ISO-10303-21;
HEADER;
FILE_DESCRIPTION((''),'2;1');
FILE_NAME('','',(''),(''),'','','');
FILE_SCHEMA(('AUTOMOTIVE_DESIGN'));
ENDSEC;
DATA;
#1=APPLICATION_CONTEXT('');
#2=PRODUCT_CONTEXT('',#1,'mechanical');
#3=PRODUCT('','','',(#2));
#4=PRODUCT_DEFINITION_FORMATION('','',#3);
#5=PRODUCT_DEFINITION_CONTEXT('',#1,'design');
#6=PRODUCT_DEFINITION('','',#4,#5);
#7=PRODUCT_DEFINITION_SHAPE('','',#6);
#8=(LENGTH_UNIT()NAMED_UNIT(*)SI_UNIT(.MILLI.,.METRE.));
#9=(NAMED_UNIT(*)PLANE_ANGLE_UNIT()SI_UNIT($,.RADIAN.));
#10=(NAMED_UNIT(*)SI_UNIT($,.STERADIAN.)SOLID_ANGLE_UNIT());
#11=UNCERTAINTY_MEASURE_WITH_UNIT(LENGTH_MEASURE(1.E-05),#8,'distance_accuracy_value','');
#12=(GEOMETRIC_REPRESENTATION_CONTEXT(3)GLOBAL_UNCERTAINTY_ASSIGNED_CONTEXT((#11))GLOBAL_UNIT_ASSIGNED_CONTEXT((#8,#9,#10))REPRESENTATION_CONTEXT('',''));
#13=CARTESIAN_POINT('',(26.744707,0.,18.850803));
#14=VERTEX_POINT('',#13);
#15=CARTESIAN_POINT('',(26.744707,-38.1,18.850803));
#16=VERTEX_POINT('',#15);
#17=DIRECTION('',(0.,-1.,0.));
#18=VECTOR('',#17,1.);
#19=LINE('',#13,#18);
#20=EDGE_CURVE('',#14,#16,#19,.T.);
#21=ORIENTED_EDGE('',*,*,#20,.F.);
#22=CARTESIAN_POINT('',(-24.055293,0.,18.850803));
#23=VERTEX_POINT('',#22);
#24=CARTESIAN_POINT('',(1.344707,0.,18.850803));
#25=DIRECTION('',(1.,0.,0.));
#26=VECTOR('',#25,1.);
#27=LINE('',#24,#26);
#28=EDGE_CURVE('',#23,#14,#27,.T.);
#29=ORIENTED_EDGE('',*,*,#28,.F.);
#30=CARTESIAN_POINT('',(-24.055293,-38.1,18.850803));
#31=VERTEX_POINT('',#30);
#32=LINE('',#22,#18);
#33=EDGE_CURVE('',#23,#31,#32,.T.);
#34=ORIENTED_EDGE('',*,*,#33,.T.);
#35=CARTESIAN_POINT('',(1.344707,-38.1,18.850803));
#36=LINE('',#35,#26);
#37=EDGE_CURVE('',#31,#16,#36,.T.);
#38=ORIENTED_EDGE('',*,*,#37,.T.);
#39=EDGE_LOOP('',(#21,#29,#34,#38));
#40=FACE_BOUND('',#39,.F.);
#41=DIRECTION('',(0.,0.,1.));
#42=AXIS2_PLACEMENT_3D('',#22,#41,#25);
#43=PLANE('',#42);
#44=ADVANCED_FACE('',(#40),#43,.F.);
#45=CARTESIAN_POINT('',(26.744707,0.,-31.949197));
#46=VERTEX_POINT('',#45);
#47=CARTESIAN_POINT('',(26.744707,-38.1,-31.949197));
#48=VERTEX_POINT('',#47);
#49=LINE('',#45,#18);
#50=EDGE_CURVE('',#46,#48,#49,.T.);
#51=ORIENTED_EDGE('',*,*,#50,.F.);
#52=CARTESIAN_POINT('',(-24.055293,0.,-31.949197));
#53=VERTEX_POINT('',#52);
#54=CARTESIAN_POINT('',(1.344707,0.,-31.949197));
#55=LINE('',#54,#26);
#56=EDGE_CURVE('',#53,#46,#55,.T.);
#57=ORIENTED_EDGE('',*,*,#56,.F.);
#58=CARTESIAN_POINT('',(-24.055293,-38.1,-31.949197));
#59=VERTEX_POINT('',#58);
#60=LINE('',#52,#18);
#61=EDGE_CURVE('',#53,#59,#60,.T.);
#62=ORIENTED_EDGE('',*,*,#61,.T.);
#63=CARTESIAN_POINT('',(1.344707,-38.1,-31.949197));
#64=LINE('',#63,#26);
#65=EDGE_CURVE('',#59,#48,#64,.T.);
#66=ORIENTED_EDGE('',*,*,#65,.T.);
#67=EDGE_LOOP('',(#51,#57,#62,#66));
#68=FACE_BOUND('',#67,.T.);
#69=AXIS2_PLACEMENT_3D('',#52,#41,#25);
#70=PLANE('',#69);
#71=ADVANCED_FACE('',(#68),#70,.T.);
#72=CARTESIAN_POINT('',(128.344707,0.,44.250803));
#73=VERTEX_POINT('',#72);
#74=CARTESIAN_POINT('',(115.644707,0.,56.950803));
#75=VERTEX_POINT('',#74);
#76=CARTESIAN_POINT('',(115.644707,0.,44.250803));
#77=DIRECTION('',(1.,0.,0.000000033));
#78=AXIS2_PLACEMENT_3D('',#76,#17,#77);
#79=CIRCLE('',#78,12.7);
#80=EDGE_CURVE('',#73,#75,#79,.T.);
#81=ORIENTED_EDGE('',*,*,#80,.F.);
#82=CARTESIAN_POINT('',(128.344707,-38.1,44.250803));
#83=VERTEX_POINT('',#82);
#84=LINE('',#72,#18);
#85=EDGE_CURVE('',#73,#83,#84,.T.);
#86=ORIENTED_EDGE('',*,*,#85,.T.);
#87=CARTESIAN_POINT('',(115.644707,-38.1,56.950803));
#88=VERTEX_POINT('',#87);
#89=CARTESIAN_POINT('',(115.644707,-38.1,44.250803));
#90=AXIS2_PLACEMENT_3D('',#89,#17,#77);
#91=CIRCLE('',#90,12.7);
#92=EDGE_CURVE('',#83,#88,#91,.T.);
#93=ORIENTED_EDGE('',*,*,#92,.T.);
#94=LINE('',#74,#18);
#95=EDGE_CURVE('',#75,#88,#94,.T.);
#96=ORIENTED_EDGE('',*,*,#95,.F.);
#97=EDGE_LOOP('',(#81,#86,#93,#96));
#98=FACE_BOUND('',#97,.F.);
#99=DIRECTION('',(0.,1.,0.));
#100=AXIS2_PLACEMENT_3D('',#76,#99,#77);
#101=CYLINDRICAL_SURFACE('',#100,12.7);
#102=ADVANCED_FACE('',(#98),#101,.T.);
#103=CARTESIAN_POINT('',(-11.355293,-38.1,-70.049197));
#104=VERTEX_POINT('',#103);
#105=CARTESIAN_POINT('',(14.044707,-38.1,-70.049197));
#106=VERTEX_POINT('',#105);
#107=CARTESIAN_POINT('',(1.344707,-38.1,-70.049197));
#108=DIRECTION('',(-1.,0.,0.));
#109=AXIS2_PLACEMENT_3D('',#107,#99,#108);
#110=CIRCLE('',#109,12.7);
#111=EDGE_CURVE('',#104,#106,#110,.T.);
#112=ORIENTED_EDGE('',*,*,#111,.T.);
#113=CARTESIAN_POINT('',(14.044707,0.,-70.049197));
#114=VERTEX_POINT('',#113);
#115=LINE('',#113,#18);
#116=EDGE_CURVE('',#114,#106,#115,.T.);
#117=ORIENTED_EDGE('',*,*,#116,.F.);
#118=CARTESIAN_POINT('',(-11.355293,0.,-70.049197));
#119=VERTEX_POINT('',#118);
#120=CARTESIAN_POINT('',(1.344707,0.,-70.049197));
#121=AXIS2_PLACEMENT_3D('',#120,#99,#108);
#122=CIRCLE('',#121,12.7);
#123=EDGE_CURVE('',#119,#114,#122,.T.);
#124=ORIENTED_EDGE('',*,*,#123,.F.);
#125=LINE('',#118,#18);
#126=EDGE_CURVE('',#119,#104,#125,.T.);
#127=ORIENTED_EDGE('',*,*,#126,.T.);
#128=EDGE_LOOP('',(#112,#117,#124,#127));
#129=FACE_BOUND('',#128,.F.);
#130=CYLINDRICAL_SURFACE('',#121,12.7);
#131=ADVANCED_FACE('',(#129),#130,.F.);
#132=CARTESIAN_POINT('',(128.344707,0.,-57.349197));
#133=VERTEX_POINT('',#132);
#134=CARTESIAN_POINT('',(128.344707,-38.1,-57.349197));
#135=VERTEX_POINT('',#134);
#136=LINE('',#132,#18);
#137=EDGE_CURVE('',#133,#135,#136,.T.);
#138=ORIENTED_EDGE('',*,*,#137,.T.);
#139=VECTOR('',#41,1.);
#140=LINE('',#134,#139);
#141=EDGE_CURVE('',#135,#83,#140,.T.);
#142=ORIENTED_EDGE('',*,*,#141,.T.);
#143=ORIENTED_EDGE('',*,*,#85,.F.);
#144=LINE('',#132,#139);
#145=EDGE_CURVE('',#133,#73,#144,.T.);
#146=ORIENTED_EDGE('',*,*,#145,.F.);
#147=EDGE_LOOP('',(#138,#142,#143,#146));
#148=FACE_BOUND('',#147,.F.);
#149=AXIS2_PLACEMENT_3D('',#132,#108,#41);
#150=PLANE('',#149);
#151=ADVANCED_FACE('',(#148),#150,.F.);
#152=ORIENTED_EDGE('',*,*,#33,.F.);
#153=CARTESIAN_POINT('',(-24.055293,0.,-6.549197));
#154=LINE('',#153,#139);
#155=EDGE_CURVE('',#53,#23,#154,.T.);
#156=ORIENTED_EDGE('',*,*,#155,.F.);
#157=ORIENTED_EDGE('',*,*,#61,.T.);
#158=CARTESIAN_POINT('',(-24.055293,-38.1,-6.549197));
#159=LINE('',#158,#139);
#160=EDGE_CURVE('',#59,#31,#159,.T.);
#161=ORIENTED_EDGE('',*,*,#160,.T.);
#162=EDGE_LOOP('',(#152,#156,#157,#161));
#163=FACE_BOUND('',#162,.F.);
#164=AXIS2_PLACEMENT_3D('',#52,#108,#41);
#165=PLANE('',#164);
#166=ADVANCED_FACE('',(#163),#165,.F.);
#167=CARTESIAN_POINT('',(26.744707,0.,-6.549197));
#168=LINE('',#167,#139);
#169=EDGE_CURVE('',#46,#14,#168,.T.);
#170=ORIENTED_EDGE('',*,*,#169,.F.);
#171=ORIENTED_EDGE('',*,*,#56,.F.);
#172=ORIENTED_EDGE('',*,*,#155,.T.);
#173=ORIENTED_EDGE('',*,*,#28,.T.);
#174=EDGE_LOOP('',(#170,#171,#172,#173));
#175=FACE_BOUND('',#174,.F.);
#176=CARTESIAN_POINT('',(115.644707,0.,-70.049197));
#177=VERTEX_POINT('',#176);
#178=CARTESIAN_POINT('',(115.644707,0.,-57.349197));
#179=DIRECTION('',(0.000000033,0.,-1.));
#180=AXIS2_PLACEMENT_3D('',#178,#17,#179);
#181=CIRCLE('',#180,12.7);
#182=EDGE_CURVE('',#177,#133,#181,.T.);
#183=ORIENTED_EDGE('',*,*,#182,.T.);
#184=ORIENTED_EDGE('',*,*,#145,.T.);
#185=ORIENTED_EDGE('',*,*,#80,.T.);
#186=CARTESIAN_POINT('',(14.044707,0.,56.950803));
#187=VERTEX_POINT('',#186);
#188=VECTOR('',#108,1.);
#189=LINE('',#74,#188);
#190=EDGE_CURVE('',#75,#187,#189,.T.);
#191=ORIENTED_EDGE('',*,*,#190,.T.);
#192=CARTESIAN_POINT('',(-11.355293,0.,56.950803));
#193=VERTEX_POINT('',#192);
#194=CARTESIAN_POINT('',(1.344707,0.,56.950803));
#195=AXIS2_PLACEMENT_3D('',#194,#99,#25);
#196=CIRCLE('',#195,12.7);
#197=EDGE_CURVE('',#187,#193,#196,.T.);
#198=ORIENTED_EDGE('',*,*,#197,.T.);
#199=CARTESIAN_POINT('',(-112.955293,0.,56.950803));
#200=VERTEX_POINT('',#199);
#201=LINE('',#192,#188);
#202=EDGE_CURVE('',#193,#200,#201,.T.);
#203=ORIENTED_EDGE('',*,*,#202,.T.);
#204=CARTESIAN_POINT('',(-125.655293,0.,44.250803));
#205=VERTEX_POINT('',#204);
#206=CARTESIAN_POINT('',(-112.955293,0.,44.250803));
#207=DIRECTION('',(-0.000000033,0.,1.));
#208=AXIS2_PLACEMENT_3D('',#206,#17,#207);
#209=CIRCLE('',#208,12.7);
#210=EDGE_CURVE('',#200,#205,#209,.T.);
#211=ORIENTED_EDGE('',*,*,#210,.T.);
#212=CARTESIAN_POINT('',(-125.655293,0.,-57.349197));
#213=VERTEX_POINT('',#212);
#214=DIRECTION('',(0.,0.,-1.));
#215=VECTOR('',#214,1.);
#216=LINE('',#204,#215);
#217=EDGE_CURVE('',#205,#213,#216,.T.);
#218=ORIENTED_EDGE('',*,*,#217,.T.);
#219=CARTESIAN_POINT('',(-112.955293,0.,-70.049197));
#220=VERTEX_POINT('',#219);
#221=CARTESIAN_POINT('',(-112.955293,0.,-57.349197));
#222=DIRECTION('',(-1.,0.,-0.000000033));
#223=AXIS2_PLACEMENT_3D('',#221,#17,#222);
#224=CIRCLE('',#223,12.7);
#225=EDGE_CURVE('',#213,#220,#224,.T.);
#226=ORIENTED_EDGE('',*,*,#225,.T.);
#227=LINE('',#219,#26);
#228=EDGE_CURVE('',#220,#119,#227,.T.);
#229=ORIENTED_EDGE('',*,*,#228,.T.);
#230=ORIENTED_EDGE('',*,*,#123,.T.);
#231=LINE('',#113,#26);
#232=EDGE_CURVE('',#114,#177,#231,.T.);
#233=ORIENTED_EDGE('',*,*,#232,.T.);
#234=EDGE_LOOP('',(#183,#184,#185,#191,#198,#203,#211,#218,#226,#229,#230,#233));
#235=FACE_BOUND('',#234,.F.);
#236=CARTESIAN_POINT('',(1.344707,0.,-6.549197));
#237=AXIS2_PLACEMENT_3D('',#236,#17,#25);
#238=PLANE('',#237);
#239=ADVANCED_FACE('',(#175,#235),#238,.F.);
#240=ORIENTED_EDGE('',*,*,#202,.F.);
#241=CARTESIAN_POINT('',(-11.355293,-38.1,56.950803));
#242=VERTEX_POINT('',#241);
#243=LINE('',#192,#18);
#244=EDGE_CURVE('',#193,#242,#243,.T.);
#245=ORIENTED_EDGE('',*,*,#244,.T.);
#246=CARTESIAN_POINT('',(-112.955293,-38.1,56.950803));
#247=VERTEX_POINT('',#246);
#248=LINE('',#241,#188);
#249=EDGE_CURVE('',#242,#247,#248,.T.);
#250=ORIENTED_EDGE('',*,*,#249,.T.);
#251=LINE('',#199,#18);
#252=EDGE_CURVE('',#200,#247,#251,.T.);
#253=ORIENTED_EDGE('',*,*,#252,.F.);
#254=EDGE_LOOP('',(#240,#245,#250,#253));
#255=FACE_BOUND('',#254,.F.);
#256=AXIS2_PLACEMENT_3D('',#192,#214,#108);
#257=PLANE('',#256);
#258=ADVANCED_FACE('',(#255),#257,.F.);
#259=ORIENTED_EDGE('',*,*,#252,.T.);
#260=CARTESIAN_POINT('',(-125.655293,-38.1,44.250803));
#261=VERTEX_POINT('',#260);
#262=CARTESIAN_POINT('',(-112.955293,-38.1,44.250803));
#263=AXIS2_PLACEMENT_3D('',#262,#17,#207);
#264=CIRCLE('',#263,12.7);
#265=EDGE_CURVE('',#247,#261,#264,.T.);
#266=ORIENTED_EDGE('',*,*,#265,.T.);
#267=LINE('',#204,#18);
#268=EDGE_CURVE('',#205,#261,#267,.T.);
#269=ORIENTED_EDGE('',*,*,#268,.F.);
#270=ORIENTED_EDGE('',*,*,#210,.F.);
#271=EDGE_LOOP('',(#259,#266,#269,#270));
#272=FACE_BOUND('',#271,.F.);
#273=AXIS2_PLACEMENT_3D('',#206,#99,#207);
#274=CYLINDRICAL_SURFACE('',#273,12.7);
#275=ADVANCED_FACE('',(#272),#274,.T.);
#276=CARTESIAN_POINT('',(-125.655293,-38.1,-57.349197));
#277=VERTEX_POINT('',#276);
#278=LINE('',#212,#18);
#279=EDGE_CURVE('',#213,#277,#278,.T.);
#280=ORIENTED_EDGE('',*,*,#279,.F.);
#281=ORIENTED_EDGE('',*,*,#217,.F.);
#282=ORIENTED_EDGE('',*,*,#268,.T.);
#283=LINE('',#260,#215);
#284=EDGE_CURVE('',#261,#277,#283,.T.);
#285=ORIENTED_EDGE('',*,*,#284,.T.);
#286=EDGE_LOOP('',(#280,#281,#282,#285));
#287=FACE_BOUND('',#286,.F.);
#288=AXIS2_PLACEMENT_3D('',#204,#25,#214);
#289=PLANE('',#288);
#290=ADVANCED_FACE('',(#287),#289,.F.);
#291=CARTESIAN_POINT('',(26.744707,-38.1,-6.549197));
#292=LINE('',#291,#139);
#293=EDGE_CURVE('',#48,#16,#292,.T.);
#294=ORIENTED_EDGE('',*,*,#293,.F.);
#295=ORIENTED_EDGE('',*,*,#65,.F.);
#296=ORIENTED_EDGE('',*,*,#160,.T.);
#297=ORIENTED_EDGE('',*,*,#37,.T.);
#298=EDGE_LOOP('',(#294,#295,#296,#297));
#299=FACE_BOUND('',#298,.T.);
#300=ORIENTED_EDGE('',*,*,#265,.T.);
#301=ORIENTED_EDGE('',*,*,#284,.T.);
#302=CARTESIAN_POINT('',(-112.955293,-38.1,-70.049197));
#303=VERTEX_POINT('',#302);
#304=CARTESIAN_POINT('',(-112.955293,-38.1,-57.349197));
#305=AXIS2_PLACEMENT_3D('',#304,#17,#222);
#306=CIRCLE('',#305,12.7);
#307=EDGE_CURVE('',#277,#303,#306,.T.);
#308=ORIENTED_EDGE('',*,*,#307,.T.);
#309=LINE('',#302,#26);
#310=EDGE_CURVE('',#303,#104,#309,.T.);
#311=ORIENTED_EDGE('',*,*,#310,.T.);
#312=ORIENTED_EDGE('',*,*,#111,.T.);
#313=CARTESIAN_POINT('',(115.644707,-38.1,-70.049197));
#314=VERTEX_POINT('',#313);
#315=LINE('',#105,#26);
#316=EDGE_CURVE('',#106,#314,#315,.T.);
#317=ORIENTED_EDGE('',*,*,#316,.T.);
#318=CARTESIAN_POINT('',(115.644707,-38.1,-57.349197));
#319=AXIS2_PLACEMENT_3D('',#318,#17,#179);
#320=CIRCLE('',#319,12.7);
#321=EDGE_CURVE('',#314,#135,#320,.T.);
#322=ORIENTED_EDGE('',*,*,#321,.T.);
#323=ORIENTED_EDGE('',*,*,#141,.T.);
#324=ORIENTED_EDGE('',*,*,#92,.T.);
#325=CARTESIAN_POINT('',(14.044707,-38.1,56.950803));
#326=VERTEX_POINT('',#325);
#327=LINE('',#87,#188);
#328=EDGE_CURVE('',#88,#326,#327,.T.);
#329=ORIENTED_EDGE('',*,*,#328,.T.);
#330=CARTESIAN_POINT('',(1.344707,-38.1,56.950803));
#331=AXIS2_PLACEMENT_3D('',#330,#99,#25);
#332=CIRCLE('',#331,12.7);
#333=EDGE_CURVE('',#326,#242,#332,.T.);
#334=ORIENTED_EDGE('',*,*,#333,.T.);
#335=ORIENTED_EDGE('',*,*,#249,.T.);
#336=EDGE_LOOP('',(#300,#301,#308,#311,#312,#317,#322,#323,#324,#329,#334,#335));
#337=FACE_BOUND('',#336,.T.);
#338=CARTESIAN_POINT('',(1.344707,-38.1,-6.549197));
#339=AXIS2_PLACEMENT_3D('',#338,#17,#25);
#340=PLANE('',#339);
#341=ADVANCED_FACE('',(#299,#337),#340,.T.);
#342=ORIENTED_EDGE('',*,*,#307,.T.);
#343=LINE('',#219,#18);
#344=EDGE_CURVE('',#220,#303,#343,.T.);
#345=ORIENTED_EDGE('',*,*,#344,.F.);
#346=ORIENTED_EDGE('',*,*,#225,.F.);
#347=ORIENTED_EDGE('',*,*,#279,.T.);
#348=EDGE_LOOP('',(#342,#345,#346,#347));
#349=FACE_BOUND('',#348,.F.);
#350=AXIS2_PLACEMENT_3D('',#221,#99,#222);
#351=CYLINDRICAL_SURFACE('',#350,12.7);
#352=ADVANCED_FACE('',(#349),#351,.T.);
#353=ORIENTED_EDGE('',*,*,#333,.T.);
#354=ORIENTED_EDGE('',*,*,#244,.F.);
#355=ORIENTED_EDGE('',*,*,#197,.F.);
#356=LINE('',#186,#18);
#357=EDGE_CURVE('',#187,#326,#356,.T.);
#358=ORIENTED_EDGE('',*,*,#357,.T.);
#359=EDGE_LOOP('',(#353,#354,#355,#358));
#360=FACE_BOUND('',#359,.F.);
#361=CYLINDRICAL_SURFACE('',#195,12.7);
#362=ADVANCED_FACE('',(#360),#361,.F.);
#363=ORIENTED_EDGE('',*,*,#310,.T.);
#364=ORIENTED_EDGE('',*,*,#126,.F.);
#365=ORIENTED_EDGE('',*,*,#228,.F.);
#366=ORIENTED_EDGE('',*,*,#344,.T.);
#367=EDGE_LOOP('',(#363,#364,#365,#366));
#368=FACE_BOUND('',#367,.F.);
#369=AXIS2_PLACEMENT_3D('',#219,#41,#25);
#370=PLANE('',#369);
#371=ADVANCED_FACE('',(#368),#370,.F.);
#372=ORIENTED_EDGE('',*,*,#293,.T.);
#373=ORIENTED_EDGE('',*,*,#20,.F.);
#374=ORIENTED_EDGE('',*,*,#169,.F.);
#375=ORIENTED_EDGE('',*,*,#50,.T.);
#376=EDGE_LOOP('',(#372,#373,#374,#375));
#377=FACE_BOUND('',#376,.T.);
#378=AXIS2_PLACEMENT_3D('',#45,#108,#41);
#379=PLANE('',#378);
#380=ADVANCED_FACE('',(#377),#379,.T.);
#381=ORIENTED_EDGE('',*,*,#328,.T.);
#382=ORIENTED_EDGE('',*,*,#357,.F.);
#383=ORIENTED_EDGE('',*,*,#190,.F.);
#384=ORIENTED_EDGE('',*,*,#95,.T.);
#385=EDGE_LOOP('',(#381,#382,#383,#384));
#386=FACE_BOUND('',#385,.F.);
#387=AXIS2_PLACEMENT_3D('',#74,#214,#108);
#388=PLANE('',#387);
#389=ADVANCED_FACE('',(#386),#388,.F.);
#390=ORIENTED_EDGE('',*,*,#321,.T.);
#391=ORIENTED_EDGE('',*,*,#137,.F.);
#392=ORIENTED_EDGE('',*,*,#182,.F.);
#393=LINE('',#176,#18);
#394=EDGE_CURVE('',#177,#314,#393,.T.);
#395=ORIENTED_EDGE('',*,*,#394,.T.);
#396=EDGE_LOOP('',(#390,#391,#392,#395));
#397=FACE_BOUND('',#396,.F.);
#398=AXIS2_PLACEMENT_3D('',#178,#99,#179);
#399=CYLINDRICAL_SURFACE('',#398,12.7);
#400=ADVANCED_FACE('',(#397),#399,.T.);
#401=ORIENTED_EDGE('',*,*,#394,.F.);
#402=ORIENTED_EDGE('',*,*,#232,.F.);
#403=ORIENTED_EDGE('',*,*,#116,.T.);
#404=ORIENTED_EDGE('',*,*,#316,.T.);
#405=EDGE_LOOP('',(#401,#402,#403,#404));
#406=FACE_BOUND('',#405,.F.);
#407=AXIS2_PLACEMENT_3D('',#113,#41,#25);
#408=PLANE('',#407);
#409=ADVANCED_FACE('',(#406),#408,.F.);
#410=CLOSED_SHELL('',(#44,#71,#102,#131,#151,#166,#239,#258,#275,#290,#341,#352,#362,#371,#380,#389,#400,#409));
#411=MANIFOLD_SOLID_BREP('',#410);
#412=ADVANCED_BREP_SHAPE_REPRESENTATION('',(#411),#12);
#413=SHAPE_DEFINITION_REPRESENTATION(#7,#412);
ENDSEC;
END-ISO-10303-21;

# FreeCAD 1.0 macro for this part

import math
import FreeCAD as App
import Part
import Sketcher
Q = App.Units.Quantity


def add_polygon(sketch, points):
    """Adds a closed chain of lines whose ends are joined by coincident constraints."""
    first, n = sketch.GeometryCount, len(points)
    for a, b in zip(points, points[1:] + points[:1]):
        sketch.addGeometry(Part.LineSegment(App.Vector(*a, 0), App.Vector(*b, 0)), False)
    for i in range(n):
        sketch.addConstraint(Sketcher.Constraint("Coincident", first + i, 2, first + (i + 1) % n, 1))

doc = App.newDocument("Part")
body = doc.addObject("PartDesign::Body", "Body")

sketch1 = doc.addObject("Sketcher::SketchObject", "Sketch")
body.addObject(sketch1)
sketch1.AttachmentSupport = (doc.XZ_Plane, [""])
sketch1.MapMode = "FlatFace"
sketch1.addGeometry(Part.LineSegment(App.Vector(-11.355293, 56.950803, 0), App.Vector(-112.955293, 56.950803, 0)), False)
sketch1.addGeometry(Part.ArcOfCircle(Part.Circle(App.Vector(-112.955293, 44.250803, 0), App.Vector(0, 0, 1), 12.7), math.radians(90.000002), math.radians(179.999998)), False)
sketch1.addGeometry(Part.LineSegment(App.Vector(-125.655293, 44.250803, 0), App.Vector(-125.655293, -57.349197, 0)), False)
sketch1.addGeometry(Part.ArcOfCircle(Part.Circle(App.Vector(-112.955293, -57.349197, 0), App.Vector(0, 0, 1), 12.7), math.radians(-179.999998), math.radians(-90.000002)), False)
sketch1.addGeometry(Part.LineSegment(App.Vector(-112.955293, -70.049197, 0), App.Vector(-11.355293, -70.049197, 0)), False)
sketch1.addGeometry(Part.ArcOfCircle(Part.Circle(App.Vector(1.344707, -70.049197, 0), App.Vector(0, 0, 1), 12.7), math.radians(0), math.radians(180)), False)
sketch1.addGeometry(Part.LineSegment(App.Vector(14.044707, -70.049197, 0), App.Vector(115.644707, -70.049197, 0)), False)
sketch1.addGeometry(Part.ArcOfCircle(Part.Circle(App.Vector(115.644707, -57.349197, 0), App.Vector(0, 0, 1), 12.7), math.radians(-89.999998), math.radians(-0.000002)), False)
sketch1.addGeometry(Part.LineSegment(App.Vector(128.344707, -57.349197, 0), App.Vector(128.344707, 44.250803, 0)), False)
sketch1.addGeometry(Part.ArcOfCircle(Part.Circle(App.Vector(115.644707, 44.250803, 0), App.Vector(0, 0, 1), 12.7), math.radians(0.000002), math.radians(89.999998)), False)
sketch1.addGeometry(Part.LineSegment(App.Vector(115.644707, 56.950803, 0), App.Vector(14.044707, 56.950803, 0)), False)
sketch1.addGeometry(Part.ArcOfCircle(Part.Circle(App.Vector(1.344707, 56.950803, 0), App.Vector(0, 0, 1), 12.7), math.radians(180), math.radians(360)), False)
add_polygon(sketch1, [(26.744707, -31.949197), (-24.055293, -31.949197), (-24.055293, 18.850803), (26.744707, 18.850803)])
sketch1.addConstraint(Sketcher.Constraint("Tangent", 0, 2, 1, 1))
sketch1.addConstraint(Sketcher.Constraint("Tangent", 1, 2, 2, 1))
sketch1.addConstraint(Sketcher.Constraint("Tangent", 2, 2, 3, 1))
sketch1.addConstraint(Sketcher.Constraint("Tangent", 3, 2, 4, 1))
sketch1.addConstraint(Sketcher.Constraint("Coincident", 4, 2, 5, 2))
sketch1.addConstraint(Sketcher.Constraint("Coincident", 5, 1, 6, 1))
sketch1.addConstraint(Sketcher.Constraint("Tangent", 6, 2, 7, 1))
sketch1.addConstraint(Sketcher.Constraint("Tangent", 7, 2, 8, 1))
sketch1.addConstraint(Sketcher.Constraint("Tangent", 8, 2, 9, 1))
sketch1.addConstraint(Sketcher.Constraint("Tangent", 9, 2, 10, 1))
sketch1.addConstraint(Sketcher.Constraint("Coincident", 10, 2, 11, 2))
sketch1.addConstraint(Sketcher.Constraint("Coincident", 11, 1, 0, 1))
sketch1.addConstraint(Sketcher.Constraint("Horizontal", 0))
sketch1.addConstraint(Sketcher.Constraint("Vertical", 2))
sketch1.addConstraint(Sketcher.Constraint("Horizontal", 4))
sketch1.addConstraint(Sketcher.Constraint("Horizontal", 6))
sketch1.addConstraint(Sketcher.Constraint("Vertical", 8))
sketch1.addConstraint(Sketcher.Constraint("Horizontal", 10))
sketch1.addConstraint(Sketcher.Constraint("Horizontal", 12))
sketch1.addConstraint(Sketcher.Constraint("Vertical", 13))
sketch1.addConstraint(Sketcher.Constraint("Horizontal", 14))
sketch1.addConstraint(Sketcher.Constraint("Vertical", 15))
sketch1.addConstraint(Sketcher.Constraint("Equal", 1, 3))
sketch1.addConstraint(Sketcher.Constraint("Equal", 3, 5))
sketch1.addConstraint(Sketcher.Constraint("Equal", 5, 7))
sketch1.addConstraint(Sketcher.Constraint("Equal", 7, 9))
sketch1.addConstraint(Sketcher.Constraint("Equal", 9, 11))
sketch1.addConstraint(Sketcher.Constraint("Horizontal", 3, 3, 7, 3))
sketch1.addConstraint(Sketcher.Constraint("Horizontal", 1, 3, 9, 3))
sketch1.addConstraint(Sketcher.Constraint("Horizontal", 11, 3, 0, 2))
sketch1.addConstraint(Sketcher.Constraint("Horizontal", 5, 3, 3, 2))
sketch1.addConstraint(Sketcher.Constraint("Vertical", 5, 3, 11, 3))
sketch1.addConstraint(Sketcher.Constraint("Equal", 4, 6))
sketch1.addConstraint(Sketcher.Constraint("Equal", 10, 2))
sketch1.addConstraint(Sketcher.Constraint("Equal", 14, 13))
sketch1.addConstraint(Sketcher.Constraint("Radius", 1, Q("0.5 in")))
sketch1.addConstraint(Sketcher.Constraint("DistanceX", 0, 2, 0, 1, Q("4 in")))
sketch1.addConstraint(Sketcher.Constraint("DistanceX", 12, 2, 12, 1, Q("2 in")))
sketch1.addConstraint(Sketcher.Constraint("DistanceX", 12, 2, 5, 3, Q("1 in")))
sketch1.addConstraint(Sketcher.Constraint("DistanceY", 3, 3, 12, 2, Q("1 in")))
sketch1.addConstraint(Sketcher.Constraint("DistanceX", 1, 3, -1, 1, 112.955293))
sketch1.addConstraint(Sketcher.Constraint("DistanceY", -1, 1, 1, 3, 44.250803))
pad1 = doc.addObject("PartDesign::Pad", "Pad")
body.addObject(pad1)
pad1.Profile = sketch1
pad1.Length = Q("1.5 in")

doc.recompute()
